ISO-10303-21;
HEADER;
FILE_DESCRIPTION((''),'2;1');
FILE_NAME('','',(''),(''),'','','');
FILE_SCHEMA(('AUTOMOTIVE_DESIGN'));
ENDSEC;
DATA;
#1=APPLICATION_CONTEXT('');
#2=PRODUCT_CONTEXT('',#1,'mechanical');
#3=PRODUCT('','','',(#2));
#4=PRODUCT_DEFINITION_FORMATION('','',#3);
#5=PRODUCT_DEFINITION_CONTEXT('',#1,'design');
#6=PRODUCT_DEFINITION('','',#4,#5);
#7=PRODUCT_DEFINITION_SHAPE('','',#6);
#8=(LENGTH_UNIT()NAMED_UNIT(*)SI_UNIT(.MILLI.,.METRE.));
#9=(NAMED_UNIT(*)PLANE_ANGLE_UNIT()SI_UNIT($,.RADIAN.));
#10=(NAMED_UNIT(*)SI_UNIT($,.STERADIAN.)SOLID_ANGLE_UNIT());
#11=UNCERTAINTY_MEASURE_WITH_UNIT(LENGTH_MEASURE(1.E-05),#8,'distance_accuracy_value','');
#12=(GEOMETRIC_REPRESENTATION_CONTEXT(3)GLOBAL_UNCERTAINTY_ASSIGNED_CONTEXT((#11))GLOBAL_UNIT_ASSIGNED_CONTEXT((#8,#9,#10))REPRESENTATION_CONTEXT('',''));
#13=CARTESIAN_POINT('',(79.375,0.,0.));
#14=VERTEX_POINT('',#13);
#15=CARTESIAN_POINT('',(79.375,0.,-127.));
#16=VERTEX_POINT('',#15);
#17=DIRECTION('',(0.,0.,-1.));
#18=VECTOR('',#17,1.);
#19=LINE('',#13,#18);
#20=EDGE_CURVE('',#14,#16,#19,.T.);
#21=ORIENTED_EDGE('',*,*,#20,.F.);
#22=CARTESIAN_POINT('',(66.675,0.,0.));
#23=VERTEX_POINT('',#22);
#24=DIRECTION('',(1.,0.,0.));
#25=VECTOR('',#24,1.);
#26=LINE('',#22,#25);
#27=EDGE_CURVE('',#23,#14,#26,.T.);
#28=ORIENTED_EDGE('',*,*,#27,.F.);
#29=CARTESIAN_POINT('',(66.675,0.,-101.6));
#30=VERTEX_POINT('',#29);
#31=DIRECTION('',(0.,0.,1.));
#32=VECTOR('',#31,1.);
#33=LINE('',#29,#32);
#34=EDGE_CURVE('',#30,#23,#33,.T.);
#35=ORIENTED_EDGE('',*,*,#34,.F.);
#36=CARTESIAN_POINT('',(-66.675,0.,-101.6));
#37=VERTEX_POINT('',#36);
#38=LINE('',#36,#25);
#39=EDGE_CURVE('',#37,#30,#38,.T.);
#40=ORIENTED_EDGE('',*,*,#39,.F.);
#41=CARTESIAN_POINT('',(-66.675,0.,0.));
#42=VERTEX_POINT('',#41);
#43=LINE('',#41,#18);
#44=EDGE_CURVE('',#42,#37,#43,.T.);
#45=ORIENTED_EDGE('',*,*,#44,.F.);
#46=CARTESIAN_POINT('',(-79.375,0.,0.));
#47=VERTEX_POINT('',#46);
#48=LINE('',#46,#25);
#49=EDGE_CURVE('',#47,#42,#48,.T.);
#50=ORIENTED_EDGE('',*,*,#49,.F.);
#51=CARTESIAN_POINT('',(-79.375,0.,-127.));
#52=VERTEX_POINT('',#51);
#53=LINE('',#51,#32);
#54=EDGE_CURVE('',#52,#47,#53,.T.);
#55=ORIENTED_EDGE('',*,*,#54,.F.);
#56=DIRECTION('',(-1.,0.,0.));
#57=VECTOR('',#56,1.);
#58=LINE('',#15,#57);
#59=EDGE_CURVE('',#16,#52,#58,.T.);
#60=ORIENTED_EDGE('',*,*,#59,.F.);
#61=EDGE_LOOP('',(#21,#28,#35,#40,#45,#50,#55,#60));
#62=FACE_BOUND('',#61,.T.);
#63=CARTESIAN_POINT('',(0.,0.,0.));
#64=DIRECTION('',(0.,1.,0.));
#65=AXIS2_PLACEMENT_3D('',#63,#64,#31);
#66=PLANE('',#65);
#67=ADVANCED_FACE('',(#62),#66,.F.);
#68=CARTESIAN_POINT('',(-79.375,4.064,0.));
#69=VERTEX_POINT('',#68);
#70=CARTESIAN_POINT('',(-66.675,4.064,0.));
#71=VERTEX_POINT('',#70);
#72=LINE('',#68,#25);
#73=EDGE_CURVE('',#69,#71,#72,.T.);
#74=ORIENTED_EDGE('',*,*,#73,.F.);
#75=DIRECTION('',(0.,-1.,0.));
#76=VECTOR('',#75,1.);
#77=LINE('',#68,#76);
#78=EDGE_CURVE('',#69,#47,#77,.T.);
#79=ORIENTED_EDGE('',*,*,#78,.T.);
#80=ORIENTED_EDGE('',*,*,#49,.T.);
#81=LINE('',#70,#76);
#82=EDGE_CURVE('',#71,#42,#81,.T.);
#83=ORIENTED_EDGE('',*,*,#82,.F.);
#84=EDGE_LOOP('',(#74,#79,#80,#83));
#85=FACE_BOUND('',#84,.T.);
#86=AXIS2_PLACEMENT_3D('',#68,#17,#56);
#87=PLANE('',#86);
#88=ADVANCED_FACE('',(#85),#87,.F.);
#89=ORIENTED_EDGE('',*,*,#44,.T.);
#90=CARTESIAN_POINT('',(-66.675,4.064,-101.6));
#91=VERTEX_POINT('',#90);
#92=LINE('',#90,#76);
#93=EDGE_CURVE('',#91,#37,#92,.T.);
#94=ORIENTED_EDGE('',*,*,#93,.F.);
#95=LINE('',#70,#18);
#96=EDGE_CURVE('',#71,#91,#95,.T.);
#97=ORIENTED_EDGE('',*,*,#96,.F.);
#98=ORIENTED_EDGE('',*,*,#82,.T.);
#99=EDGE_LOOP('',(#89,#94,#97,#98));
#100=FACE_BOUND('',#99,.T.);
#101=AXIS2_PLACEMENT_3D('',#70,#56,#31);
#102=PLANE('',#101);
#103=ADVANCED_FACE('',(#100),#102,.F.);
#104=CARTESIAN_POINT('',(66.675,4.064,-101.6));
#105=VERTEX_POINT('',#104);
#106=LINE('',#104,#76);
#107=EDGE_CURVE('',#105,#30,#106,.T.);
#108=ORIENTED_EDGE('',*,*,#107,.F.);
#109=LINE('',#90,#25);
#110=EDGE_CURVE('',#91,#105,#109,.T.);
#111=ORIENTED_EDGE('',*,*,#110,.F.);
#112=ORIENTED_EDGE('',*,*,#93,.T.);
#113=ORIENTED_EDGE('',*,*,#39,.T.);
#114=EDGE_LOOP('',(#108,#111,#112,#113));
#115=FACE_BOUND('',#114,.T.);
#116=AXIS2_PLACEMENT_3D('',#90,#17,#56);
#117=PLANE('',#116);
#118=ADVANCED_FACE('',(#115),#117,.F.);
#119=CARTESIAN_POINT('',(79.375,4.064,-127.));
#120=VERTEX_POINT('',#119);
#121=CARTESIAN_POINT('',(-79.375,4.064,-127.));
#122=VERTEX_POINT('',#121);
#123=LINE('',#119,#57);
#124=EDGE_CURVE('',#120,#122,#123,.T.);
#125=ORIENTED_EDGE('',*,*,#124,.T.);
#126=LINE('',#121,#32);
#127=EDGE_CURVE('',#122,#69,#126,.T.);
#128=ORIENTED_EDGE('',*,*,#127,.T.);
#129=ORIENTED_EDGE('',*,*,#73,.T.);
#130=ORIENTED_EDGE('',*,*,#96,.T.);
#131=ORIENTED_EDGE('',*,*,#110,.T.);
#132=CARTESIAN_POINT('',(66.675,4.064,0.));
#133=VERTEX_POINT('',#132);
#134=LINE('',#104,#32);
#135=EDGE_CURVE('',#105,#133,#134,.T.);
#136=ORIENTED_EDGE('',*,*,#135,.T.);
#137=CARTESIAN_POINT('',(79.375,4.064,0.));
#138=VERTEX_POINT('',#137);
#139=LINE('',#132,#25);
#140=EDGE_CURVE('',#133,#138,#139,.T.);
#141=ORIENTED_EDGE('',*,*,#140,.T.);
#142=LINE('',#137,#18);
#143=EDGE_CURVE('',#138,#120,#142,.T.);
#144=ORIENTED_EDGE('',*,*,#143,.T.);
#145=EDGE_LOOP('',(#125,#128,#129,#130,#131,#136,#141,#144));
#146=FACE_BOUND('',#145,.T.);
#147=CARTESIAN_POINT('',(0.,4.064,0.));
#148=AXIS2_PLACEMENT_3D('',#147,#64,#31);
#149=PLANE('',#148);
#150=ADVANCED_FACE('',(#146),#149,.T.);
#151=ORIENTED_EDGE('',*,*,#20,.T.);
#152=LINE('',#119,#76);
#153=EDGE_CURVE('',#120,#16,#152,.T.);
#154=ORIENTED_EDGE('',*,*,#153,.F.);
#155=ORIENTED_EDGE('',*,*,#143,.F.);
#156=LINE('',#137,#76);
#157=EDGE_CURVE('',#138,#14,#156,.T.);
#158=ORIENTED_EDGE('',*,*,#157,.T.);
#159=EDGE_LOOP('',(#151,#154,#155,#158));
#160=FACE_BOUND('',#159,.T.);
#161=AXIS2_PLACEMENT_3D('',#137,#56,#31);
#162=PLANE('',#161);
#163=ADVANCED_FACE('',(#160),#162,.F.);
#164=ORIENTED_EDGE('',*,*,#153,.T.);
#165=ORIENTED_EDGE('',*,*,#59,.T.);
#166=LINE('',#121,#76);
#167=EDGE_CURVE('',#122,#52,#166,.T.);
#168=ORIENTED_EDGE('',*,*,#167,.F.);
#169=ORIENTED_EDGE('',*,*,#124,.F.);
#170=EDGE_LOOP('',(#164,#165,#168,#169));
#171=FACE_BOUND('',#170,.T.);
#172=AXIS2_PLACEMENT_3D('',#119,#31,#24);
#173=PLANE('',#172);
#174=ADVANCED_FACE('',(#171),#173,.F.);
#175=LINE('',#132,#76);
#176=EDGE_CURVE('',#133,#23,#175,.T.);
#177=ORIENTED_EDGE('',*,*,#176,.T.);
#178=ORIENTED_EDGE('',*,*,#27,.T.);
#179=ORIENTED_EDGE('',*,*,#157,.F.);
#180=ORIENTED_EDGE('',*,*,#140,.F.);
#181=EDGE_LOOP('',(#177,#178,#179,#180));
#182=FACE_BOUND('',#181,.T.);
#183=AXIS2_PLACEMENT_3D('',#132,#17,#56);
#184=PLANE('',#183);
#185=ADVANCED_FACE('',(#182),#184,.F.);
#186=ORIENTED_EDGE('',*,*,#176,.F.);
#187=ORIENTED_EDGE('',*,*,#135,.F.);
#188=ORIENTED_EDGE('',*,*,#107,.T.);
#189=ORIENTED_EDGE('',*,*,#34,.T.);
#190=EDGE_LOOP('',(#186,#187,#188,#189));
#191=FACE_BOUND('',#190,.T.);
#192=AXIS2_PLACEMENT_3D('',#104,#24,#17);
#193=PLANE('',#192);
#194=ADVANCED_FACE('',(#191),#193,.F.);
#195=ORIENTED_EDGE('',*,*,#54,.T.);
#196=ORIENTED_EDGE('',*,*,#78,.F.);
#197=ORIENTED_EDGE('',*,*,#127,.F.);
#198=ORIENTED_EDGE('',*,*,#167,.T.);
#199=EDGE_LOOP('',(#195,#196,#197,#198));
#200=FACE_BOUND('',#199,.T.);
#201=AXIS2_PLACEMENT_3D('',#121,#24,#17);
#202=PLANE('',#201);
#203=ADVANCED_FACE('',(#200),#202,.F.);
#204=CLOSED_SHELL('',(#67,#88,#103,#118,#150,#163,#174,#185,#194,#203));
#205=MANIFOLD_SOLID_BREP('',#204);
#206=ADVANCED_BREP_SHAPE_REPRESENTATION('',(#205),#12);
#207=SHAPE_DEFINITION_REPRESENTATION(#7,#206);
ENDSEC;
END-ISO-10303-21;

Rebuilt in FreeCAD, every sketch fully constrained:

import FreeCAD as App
import Part
import Sketcher

V = App.Vector
Q = App.Units.Quantity


def add_polygon(sketch, points):
    """Adds a closed chain of lines whose ends are joined by coincident constraints."""
    first, n = sketch.GeometryCount, len(points)
    for a, b in zip(points, points[1:] + points[:1]):
        sketch.addGeometry(Part.LineSegment(App.Vector(*a, 0), App.Vector(*b, 0)), False)
    for i in range(n):
        sketch.addConstraint(Sketcher.Constraint("Coincident", first + i, 2, first + (i + 1) % n, 1))

doc = App.newDocument("Part")
body = doc.addObject("PartDesign::Body", "Body")

# Sketch on XZ plane
sketch1 = doc.addObject("Sketcher::SketchObject", "Sketch")
body.addObject(sketch1)
sketch1.AttachmentSupport = (doc.XZ_Plane, [""])
sketch1.MapMode = "FlatFace"
add_polygon(sketch1, [(-79, 0), (-67, 0), (-67, -102), (67, -102), (67, 0), (79, 0), (79, -127), (-79, -127)])  # lines 0-7
sketch1.addConstraint([
    Sketcher.Constraint("Horizontal", 0),
    Sketcher.Constraint("Vertical", 1),
    Sketcher.Constraint("Horizontal", 2),
    Sketcher.Constraint("Vertical", 3),
    Sketcher.Constraint("Horizontal", 4),
    Sketcher.Constraint("Vertical", 5),
    Sketcher.Constraint("Horizontal", 6),
    Sketcher.Constraint("Vertical", 7),
    Sketcher.Constraint("Symmetric", 0, 2, 3, 2, -1, 1),
    Sketcher.Constraint("Symmetric", 4, 2, 7, 2, -2),
    Sketcher.Constraint("DistanceY", 1, 2, 1, 1, Q("4 in")),
    Sketcher.Constraint("DistanceY", 5, 2, 5, 1, Q("5 in")),
    Sketcher.Constraint("DistanceX", 0, 1, 0, 2, Q("0.5 in")),
    Sketcher.Constraint("DistanceX", 2, 1, 2, 2, Q("5.25 in")),
])
pad1 = doc.addObject("PartDesign::Pad", "Pad")
body.addObject(pad1)
pad1.Profile = sketch1
pad1.Length = Q("0.16 in")
pad1.Reversed = True

doc.recompute()
